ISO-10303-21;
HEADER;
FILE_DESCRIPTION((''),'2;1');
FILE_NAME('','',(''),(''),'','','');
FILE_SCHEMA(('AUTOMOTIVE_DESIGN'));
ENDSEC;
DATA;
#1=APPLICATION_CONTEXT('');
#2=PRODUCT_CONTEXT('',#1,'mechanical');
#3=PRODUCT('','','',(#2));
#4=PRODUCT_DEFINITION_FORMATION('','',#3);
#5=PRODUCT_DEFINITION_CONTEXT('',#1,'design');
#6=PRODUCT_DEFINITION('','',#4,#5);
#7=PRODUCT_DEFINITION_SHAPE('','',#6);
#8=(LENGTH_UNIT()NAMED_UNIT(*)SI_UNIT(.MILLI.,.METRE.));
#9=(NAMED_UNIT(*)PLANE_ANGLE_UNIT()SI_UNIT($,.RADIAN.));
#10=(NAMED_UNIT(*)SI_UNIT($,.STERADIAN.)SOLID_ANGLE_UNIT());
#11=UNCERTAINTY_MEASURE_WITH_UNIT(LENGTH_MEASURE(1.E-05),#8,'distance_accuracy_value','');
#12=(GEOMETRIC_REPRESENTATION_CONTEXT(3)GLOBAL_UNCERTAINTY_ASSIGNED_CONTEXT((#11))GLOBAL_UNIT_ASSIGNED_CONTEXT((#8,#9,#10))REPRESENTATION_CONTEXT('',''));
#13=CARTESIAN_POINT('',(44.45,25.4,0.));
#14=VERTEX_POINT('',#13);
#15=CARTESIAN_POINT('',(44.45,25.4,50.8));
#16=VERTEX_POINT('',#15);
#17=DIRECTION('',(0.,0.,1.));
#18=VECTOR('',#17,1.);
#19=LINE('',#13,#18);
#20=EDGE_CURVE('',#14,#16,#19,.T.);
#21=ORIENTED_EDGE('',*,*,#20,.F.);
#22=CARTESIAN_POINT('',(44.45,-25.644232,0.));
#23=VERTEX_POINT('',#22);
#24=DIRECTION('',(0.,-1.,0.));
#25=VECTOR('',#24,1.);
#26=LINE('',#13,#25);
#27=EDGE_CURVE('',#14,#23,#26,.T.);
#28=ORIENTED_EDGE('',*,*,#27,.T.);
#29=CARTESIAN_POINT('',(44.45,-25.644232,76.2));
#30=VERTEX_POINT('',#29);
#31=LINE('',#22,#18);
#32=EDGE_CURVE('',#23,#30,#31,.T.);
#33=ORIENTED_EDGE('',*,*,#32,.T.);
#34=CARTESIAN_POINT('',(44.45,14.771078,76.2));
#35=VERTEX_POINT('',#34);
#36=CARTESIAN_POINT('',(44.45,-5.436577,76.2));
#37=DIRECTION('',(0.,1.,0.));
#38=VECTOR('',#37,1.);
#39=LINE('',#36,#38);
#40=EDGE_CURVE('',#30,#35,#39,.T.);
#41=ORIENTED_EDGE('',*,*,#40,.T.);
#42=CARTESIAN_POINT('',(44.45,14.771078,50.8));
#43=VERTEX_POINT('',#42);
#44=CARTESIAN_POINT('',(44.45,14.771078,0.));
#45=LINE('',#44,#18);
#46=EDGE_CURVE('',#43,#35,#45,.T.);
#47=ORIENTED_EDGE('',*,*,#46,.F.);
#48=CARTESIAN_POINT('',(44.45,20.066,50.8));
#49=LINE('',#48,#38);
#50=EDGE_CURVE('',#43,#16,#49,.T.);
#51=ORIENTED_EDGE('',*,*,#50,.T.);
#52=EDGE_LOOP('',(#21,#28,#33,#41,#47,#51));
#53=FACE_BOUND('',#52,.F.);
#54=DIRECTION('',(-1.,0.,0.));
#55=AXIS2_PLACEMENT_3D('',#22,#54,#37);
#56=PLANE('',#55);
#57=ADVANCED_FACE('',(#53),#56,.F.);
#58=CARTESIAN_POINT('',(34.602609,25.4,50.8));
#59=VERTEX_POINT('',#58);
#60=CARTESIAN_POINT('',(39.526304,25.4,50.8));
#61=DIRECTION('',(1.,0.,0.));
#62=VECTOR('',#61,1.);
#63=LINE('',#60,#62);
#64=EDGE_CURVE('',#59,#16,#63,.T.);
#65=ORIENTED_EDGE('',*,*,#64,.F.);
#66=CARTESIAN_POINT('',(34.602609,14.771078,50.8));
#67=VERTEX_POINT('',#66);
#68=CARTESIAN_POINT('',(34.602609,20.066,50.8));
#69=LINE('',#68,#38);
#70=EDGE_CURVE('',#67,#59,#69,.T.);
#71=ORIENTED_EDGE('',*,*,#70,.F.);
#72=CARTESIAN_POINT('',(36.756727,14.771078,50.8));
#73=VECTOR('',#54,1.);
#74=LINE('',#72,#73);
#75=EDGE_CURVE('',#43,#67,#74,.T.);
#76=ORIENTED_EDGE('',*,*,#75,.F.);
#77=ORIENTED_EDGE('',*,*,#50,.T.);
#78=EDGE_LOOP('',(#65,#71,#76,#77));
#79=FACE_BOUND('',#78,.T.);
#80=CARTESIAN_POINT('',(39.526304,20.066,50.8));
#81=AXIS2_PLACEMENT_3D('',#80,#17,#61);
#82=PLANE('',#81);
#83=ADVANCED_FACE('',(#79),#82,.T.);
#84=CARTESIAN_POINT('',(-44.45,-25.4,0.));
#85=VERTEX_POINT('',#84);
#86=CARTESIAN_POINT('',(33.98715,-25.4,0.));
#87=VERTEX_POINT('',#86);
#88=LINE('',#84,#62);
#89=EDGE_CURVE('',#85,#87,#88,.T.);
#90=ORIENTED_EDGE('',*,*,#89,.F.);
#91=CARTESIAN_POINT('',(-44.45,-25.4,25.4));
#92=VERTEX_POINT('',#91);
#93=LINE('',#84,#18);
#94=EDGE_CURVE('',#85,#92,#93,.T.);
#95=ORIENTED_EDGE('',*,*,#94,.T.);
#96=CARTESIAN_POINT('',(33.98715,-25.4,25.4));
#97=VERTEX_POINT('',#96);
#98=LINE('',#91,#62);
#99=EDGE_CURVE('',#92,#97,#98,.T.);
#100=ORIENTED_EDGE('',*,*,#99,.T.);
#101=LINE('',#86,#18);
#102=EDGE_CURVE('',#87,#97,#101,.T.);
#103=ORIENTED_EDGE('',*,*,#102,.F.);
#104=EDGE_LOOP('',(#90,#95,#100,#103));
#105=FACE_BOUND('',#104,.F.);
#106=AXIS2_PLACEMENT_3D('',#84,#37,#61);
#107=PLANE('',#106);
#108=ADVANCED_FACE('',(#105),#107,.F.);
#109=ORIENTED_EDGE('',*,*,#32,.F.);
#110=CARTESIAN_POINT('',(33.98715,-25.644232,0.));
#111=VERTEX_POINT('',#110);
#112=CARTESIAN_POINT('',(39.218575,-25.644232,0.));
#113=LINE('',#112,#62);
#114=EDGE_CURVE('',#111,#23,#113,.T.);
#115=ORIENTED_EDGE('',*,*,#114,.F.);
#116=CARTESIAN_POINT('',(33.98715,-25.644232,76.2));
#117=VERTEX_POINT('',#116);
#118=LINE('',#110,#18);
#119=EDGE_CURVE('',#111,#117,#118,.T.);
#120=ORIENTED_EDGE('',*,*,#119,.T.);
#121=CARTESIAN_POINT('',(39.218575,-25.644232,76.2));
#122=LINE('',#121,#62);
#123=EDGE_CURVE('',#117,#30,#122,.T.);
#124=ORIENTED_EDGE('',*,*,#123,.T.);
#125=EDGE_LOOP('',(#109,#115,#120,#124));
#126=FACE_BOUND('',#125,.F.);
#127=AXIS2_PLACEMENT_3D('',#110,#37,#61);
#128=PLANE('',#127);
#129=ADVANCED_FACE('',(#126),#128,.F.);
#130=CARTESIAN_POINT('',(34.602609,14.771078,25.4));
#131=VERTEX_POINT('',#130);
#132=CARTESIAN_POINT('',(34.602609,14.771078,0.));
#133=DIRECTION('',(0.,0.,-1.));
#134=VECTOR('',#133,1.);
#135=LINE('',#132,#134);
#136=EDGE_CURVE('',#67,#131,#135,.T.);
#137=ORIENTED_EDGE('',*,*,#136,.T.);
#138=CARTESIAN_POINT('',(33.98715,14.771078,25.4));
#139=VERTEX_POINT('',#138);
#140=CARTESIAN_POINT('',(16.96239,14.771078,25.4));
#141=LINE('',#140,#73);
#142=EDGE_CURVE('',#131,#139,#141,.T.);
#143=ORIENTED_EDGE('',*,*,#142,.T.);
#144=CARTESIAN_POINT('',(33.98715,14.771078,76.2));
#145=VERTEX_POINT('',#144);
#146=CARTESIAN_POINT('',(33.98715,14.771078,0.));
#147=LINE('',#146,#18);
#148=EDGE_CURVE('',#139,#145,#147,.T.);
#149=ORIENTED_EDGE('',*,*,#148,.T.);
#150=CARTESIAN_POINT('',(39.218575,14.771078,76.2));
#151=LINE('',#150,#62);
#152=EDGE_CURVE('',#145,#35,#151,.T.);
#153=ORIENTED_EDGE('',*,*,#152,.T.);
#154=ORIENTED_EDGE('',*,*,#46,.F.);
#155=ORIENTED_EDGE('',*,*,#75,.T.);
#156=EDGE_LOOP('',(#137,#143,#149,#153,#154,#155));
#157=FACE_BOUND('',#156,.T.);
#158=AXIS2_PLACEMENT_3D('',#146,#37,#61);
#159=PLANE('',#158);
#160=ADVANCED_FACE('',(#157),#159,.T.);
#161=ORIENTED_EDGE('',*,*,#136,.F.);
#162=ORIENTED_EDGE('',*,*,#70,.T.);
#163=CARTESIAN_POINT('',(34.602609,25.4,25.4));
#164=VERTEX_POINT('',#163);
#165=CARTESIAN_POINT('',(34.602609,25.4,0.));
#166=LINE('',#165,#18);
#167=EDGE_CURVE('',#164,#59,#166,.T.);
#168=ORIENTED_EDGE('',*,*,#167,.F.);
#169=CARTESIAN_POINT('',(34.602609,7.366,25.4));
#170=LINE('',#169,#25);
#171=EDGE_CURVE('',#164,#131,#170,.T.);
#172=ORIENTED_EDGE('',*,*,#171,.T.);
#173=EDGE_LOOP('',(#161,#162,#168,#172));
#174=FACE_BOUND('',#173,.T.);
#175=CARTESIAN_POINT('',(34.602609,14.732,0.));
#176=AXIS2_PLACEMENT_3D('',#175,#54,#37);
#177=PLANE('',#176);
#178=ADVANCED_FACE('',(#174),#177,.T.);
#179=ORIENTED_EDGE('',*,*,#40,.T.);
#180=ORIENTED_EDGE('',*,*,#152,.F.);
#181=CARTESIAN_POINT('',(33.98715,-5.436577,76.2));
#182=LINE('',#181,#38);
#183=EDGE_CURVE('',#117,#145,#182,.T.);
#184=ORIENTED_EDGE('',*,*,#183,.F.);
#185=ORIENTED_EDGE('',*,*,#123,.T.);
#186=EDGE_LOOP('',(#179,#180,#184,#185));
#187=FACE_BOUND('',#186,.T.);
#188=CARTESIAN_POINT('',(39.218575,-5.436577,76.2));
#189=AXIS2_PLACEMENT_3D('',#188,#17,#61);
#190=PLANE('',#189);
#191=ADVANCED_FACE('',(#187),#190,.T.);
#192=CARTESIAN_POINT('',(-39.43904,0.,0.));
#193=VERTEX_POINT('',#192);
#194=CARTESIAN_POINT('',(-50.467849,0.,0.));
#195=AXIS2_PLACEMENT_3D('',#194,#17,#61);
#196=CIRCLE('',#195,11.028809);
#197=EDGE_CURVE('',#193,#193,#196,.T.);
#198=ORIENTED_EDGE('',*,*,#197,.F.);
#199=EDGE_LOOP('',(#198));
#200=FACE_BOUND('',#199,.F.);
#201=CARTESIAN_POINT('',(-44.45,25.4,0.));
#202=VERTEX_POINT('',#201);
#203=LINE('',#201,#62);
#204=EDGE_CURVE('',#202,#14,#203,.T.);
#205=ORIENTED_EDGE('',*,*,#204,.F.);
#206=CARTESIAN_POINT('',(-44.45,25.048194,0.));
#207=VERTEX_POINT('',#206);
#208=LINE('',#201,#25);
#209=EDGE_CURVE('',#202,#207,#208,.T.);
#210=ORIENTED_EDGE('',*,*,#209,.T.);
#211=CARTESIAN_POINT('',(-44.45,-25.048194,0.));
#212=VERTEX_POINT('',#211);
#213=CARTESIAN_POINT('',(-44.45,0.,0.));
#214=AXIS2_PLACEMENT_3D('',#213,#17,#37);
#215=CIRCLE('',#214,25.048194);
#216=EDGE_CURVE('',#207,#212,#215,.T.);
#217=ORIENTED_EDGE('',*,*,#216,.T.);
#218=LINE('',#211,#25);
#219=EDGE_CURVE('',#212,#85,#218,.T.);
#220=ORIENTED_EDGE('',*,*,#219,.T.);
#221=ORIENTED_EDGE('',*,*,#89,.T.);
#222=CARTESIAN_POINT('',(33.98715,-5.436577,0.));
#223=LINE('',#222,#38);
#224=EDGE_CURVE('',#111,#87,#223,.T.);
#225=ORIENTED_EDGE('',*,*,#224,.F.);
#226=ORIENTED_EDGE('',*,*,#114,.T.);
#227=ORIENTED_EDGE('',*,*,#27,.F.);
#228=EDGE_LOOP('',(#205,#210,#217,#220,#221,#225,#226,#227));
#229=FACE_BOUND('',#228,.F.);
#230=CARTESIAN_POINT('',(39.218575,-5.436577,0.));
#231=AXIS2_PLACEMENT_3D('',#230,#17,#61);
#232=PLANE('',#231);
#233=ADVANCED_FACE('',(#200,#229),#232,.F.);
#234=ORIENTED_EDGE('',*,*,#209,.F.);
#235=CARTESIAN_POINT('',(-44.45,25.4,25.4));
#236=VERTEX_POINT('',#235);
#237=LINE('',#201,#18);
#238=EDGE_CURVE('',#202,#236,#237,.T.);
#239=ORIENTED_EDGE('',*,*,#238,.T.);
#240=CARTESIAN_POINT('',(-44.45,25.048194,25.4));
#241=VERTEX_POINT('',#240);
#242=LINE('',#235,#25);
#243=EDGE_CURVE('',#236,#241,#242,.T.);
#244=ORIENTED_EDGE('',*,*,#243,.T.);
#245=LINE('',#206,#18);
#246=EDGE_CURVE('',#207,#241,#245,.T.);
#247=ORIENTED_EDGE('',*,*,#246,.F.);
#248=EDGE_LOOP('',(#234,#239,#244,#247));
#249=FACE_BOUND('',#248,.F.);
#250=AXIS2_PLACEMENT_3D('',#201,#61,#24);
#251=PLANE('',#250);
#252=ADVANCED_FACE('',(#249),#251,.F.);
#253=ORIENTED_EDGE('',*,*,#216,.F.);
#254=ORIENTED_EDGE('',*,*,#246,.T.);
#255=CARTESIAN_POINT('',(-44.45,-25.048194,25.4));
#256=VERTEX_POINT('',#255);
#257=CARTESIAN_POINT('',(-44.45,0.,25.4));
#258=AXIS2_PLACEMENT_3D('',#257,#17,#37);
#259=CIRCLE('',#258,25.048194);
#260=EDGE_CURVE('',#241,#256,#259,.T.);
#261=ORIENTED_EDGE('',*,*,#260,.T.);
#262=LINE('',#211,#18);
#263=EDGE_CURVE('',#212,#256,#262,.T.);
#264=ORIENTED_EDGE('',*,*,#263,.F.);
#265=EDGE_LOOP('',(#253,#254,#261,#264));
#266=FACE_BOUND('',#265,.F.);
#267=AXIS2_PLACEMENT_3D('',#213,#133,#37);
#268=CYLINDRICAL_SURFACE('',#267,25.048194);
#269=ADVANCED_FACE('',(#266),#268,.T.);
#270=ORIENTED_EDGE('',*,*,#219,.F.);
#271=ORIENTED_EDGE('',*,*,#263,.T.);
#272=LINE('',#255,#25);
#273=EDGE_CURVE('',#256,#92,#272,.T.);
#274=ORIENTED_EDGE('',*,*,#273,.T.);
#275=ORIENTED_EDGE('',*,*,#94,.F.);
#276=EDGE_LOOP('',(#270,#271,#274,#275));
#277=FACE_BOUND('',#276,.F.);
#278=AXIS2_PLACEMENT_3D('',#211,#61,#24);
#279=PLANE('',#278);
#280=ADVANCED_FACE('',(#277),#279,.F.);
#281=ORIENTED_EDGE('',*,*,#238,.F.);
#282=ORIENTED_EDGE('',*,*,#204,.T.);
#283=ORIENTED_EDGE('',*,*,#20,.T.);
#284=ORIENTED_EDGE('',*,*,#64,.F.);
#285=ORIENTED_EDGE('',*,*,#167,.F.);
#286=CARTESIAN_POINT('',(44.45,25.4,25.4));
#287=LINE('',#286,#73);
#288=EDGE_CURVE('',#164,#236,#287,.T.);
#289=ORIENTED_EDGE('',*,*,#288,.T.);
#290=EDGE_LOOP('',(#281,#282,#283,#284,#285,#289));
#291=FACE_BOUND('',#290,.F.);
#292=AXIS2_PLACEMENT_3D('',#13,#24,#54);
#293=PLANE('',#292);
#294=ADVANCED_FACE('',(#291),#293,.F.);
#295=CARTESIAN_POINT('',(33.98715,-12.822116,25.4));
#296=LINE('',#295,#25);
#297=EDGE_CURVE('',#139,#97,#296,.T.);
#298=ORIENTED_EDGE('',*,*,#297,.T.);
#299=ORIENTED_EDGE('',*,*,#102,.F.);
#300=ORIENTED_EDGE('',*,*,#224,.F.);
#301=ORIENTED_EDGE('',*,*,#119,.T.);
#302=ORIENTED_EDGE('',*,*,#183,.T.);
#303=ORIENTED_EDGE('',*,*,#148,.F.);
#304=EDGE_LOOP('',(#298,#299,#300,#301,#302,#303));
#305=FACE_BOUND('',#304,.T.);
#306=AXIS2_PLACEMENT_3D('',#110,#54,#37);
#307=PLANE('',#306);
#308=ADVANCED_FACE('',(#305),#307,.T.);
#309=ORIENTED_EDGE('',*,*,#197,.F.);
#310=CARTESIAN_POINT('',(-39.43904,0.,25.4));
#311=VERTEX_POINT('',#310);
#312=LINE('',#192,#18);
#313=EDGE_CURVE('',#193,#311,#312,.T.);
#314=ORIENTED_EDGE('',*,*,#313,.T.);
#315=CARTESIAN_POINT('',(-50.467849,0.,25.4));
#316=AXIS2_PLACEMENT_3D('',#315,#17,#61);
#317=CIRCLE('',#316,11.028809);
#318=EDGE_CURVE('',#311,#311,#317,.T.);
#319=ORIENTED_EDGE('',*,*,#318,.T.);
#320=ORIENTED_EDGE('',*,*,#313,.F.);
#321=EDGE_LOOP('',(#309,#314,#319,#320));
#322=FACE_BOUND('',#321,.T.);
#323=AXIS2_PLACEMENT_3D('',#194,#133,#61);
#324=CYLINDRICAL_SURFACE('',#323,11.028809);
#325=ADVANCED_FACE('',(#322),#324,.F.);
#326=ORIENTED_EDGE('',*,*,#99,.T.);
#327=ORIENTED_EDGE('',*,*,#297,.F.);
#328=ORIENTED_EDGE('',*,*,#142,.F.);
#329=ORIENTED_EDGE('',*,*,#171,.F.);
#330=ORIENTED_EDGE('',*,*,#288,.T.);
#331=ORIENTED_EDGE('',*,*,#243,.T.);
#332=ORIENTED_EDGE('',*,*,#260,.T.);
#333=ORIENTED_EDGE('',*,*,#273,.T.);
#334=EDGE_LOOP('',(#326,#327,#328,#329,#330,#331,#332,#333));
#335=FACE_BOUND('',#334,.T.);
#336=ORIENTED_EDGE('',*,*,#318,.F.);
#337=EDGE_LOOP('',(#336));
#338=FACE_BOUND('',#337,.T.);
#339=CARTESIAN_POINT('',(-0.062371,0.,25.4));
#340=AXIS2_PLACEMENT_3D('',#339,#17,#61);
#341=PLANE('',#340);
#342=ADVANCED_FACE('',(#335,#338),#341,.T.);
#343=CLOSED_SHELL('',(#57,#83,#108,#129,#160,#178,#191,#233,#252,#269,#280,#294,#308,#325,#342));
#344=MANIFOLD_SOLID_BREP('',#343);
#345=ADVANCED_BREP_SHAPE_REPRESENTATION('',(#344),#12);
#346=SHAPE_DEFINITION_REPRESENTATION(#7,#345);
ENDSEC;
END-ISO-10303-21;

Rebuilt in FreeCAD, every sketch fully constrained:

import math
import FreeCAD as App
import Part
import Sketcher
from FreeCAD import Vector
Q = App.Units.Quantity


def add_polygon(sketch, points):
    """Adds a closed chain of lines whose ends are joined by coincident constraints."""
    first, n = sketch.GeometryCount, len(points)
    for a, b in zip(points, points[1:] + points[:1]):
        sketch.addGeometry(Part.LineSegment(App.Vector(*a, 0), App.Vector(*b, 0)), False)
    for i in range(n):
        sketch.addConstraint(Sketcher.Constraint("Coincident", first + i, 2, first + (i + 1) % n, 1))

doc = App.newDocument("Part")
params = doc.addObject("Spreadsheet::Sheet", "Params")
for row, (alias, value) in enumerate([
    ("sketch1_height", "2 in"),
    ("sketch1_width", "3.5 in"),
    ("pad1_length", "1 in"),
    ("pocket1_length", "1 in"),
    ("sketch3_height", "0.42 in"),
    ("pad2_length", "2 in"),
    ("pad3_length", "3 in"),
], start=1):
    params.set(f"A{row}", alias)
    params.set(f"B{row}", "=" + value)
    params.setAlias(f"B{row}", alias)

body = doc.addObject("PartDesign::Body", "Body")

sketch1 = body.newObject("Sketcher::SketchObject", "Sketch")
sketch1.AttachmentSupport = (doc.getObject("XY_Plane"), [""])
sketch1.MapMode = "FlatFace"
sketch1.addGeometry([
    Part.LineSegment(Vector(-44.45, -25.4, 0), Vector(44.45, -25.4, 0)),
    Part.LineSegment(Vector(44.45, -25.4, 0), Vector(44.45, 25.4, 0)),
    Part.LineSegment(Vector(44.45, 25.4, 0), Vector(-44.45, 25.4, 0)),
    Part.LineSegment(Vector(-44.45, 25.4, 0), Vector(-44.45, 25.05, 0)),
    Part.ArcOfCircle(Part.Circle(Vector(-44.45, 0, 0), Vector(0, 0, 1), 25.05), math.radians(90), math.radians(270)),
    Part.LineSegment(Vector(-44.45, -25.05, 0), Vector(-44.45, -25.4, 0)),
], False)
sketch1.addConstraint([
    Sketcher.Constraint("Coincident", 0, 2, 1, 1),
    Sketcher.Constraint("Coincident", 1, 2, 2, 1),
    Sketcher.Constraint("Coincident", 2, 2, 3, 1),
    Sketcher.Constraint("Coincident", 3, 2, 4, 1),
    Sketcher.Constraint("Coincident", 4, 2, 5, 1),
    Sketcher.Constraint("Coincident", 5, 2, 0, 1),
    Sketcher.Constraint("Horizontal", 0),
    Sketcher.Constraint("Vertical", 1),
    Sketcher.Constraint("Horizontal", 2),
    Sketcher.Constraint("Vertical", 3),
    Sketcher.Constraint("Vertical", 5),
    Sketcher.Constraint("Symmetric", 0, 2, 2, 2, -1, 1),
    Sketcher.Constraint("Symmetric", 3, 2, 4, 2, -1),
    Sketcher.Constraint("Vertical", 4, 3, 2, 2),
    Sketcher.Constraint("DistanceY", 1, 1, 1, 2, Q("2 in")),
    Sketcher.Constraint("DistanceX", 0, 1, 0, 2, Q("3.5 in")),
    Sketcher.Constraint("Radius", 4, 25.048194),
])
sketch1.setExpression("Constraints[14]", "Params.sketch1_height")
sketch1.setExpression("Constraints[15]", "Params.sketch1_width")
pad1 = body.newObject("PartDesign::Pad", "Pad")
pad1.Profile = sketch1
pad1.setExpression("Length", "Params.pad1_length")

sketch2 = body.newObject("Sketcher::SketchObject", "Sketch001")
sketch2.AttachmentSupport = (doc.getObject("XY_Plane"), [""])
sketch2.MapMode = "FlatFace"
sketch2.addGeometry(Part.Circle(Vector(-50, 0, 0), Vector(0, 0, 1), 11), False)
sketch2.addConstraint([
    Sketcher.Constraint("PointOnObject", 0, 3, -1),
    Sketcher.Constraint("Diameter", 0, 22.057617),
    Sketcher.Constraint("DistanceX", 0, 3, -1, 1, 50.467849),
])
pocket1 = body.newObject("PartDesign::Pocket", "Pocket")
pocket1.Profile = sketch2
pocket1.setExpression("Length", "Params.pocket1_length")
pocket1.Reversed = True

sketch3 = body.newObject("Sketcher::SketchObject", "Sketch002")
sketch3.AttachmentSupport = (doc.getObject("XY_Plane"), [""])
sketch3.MapMode = "FlatFace"
add_polygon(sketch3, [(35, 25), (35, 15), (44, 15), (44, 25)])
sketch3.addConstraint([
    Sketcher.Constraint("Vertical", 0),
    Sketcher.Constraint("Horizontal", 1),
    Sketcher.Constraint("Vertical", 2),
    Sketcher.Constraint("Horizontal", 3),
    Sketcher.Constraint("DistanceY", -1, 1, 2, 2, Q("1 in")),
    Sketcher.Constraint("DistanceY", 0, 2, 0, 1, Q("0.42 in")),
    Sketcher.Constraint("DistanceX", -1, 1, 1, 2, Q("1.75 in")),
    Sketcher.Constraint("DistanceX", 1, 1, 1, 2, 9.847391),
])
sketch3.setExpression("Constraints[9]", "Params.sketch3_height")
pad2 = body.newObject("PartDesign::Pad", "Pad001")
pad2.Profile = sketch3
pad2.setExpression("Length", "Params.pad2_length")

sketch4 = body.newObject("Sketcher::SketchObject", "Sketch003")
sketch4.AttachmentSupport = (doc.getObject("XY_Plane"), [""])
sketch4.MapMode = "FlatFace"
add_polygon(sketch4, [(34, 15), (34, -26), (44, -26), (44, 15)])
sketch4.addConstraint([
    Sketcher.Constraint("Vertical", 0),
    Sketcher.Constraint("Horizontal", 1),
    Sketcher.Constraint("Vertical", 2),
    Sketcher.Constraint("Horizontal", 3),
    Sketcher.Constraint("DistanceX", -1, 1, 1, 2, Q("1.75 in")),
    Sketcher.Constraint("DistanceX", 1, 1, 1, 2, 10.46285),
    Sketcher.Constraint("DistanceY", 0, 2, 0, 1, 40.415309),
    Sketcher.Constraint("DistanceY", 0, 2, -1, 1, 25.644232),
])
pad3 = body.newObject("PartDesign::Pad", "Pad002")
pad3.Profile = sketch4
pad3.setExpression("Length", "Params.pad3_length")

doc.recompute()
